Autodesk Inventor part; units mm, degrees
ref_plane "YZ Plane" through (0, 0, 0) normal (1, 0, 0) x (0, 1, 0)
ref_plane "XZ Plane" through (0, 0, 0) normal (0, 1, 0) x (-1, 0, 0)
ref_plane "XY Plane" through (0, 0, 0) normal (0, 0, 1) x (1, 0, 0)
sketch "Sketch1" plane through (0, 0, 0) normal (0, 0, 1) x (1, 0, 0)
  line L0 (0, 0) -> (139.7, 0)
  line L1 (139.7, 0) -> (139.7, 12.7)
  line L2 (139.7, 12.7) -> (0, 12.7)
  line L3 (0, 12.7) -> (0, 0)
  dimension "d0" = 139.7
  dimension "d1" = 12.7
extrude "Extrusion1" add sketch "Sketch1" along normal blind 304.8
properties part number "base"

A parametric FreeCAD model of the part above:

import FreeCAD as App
import Part
import Sketcher
from FreeCAD import Vector
Q = App.Units.Quantity

doc = App.newDocument("Part")
body = doc.addObject("PartDesign::Body", "Body")

sketch1 = body.newObject("Sketcher::SketchObject", "Sketch")
sketch1.AttachmentSupport = (doc.getObject("XY_Plane"), [""])
sketch1.MapMode = "FlatFace"
sketch1.addGeometry([
    Part.LineSegment(Vector(0, 13, 0), Vector(0, 0, 0)),
    Part.LineSegment(Vector(0, 0, 0), Vector(140, 0, 0)),
    Part.LineSegment(Vector(140, 0, 0), Vector(140, 13, 0)),
    Part.LineSegment(Vector(140, 13, 0), Vector(0, 13, 0)),
], False)
sketch1.addConstraint([
    Sketcher.Constraint("Coincident", 0, 2, 1, 1),
    Sketcher.Constraint("Coincident", 1, 2, 2, 1),
    Sketcher.Constraint("Coincident", 2, 2, 3, 1),
    Sketcher.Constraint("Coincident", 3, 2, 0, 1),
    Sketcher.Constraint("Vertical", 0),
    Sketcher.Constraint("Horizontal", 1),
    Sketcher.Constraint("Vertical", 2),
    Sketcher.Constraint("Horizontal", 3),
    Sketcher.Constraint("Coincident", 0, 2, -1, 1),
    Sketcher.Constraint("DistanceX", 1, 1, 1, 2, Q("5.5 in")),
    Sketcher.Constraint("DistanceY", 0, 2, 0, 1, Q("0.5 in")),
])
pad1 = body.newObject("PartDesign::Pad", "Pad")
pad1.Profile = sketch1
pad1.Length = Q("12 in")

doc.recompute()
